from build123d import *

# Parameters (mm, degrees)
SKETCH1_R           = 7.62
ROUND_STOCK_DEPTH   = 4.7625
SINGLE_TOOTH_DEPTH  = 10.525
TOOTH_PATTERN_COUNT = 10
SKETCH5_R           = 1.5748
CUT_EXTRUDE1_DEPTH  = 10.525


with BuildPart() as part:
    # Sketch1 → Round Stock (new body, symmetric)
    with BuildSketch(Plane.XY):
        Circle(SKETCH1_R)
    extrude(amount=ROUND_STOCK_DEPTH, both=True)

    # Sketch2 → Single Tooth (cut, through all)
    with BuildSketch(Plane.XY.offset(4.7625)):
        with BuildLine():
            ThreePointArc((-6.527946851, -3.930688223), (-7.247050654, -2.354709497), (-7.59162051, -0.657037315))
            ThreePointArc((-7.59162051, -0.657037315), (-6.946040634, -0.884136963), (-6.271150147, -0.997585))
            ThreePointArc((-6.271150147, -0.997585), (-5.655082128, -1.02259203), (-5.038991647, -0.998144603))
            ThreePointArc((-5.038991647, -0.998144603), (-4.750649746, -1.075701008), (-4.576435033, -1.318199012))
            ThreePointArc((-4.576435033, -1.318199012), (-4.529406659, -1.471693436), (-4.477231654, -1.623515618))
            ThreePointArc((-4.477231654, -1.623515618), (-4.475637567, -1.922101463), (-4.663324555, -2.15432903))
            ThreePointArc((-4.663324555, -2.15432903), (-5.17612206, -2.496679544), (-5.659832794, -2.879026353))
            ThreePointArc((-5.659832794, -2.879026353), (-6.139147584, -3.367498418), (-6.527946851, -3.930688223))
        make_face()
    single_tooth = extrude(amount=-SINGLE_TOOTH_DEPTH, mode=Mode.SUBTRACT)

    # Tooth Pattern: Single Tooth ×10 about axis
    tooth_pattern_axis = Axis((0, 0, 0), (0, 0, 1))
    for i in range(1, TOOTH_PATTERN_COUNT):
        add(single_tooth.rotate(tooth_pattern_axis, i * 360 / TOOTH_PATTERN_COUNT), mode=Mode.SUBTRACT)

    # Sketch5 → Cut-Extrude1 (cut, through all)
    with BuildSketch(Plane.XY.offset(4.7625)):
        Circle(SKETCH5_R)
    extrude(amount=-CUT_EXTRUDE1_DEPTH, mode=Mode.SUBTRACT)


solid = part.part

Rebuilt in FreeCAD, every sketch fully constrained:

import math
import FreeCAD as App
import Part
import Sketcher
from FreeCAD import Vector
Q = App.Units.Quantity

doc = App.newDocument("Part")
body = doc.addObject("PartDesign::Body", "Body")

# Sketch on XY plane
sketch1 = body.newObject("Sketcher::SketchObject", "Sketch")
sketch1.AttachmentSupport = (doc.getObject("XY_Plane"), [""])
sketch1.MapMode = "FlatFace"
sketch1.addGeometry(Part.Circle(Vector(0, 0, 0), Vector(0, 0, 1), 8), False)
sketch1.addConstraint(Sketcher.Constraint("Coincident", 0, 3, -1, 1))
sketch1.addConstraint(Sketcher.Constraint("Diameter", 0, Q("0.6 in")))
pad1 = body.newObject("PartDesign::Pad", "Pad")
pad1.Profile = sketch1
pad1.Length = Q("0.375 in")
pad1.Midplane = True

# Sketch on XY plane
sketch2 = body.newObject("Sketcher::SketchObject", "Sketch001")
sketch2.AttachmentSupport = (doc.getObject("XY_Plane"), [""])
sketch2.MapMode = "FlatFace"
sketch2.AttachmentOffset = App.Placement(Vector(0, 0, 0.1875 * 25.4), App.Rotation())
sketch2.addGeometry(Part.ArcOfCircle(Part.Circle(Vector(0, 0, 0), Vector(0, 0, 1), 7.62), math.radians(-175), math.radians(-149)), False)
sketch2.addGeometry(Part.ArcOfCircle(Part.Circle(Vector(-3.06, -5.91, 0), Vector(0, 0, 1), 3.99), math.radians(130.62), math.radians(150.3)), False)
sketch2.addGeometry(Part.ArcOfCircle(Part.Circle(Vector(-0.65, -8.71, 0), Vector(0, 0, 1), 7.69), math.radians(121.43), math.radians(130.62)), False)
sketch2.addGeometry(Part.ArcOfCircle(Part.Circle(Vector(-4.9, -1.78, 0), Vector(0, 0, 1), 0.44), math.radians(-59), math.radians(20)), False)
sketch2.addGeometry(Part.ArcOfCircle(Part.Circle(Vector(0, 0, 0), Vector(0, 0, 1), 4.76), math.radians(-163.93), math.radians(-160.07)), False)
sketch2.addGeometry(Part.ArcOfCircle(Part.Circle(Vector(-5, -1.44, 0), Vector(0, 0, 1), 0.44), math.radians(16), math.radians(95)), False)
sketch2.addGeometry(Part.ArcOfCircle(Part.Circle(Vector(-5.65, 6.66, 0), Vector(0, 0, 1), 7.69), math.radians(-94.62), math.radians(-85.43)), False)
sketch2.addGeometry(Part.ArcOfCircle(Part.Circle(Vector(-5.95, 2.98, 0), Vector(0, 0, 1), 3.99), math.radians(-114.3), math.radians(-94.62)), False)
sketch2.addConstraint(Sketcher.Constraint("Coincident", 0, 2, 1, 2))
sketch2.addConstraint(Sketcher.Constraint("Tangent", 1, 1, 2, 2))
sketch2.addConstraint(Sketcher.Constraint("Tangent", 2, 1, 3, 1))
sketch2.addConstraint(Sketcher.Constraint("Tangent", 3, 2, 4, 2))
sketch2.addConstraint(Sketcher.Constraint("Tangent", 4, 1, 5, 1))
sketch2.addConstraint(Sketcher.Constraint("Tangent", 5, 2, 6, 2))
sketch2.addConstraint(Sketcher.Constraint("Tangent", 6, 1, 7, 2))
sketch2.addConstraint(Sketcher.Constraint("Coincident", 7, 1, 0, 1))
sketch2.addConstraint(Sketcher.Constraint("Coincident", 0, 3, -1, 1))
sketch2.addConstraint(Sketcher.Constraint("Coincident", 4, 3, -1, 1))
sketch2.addConstraint(Sketcher.Constraint("Equal", 3, 5))
sketch2.addConstraint(Sketcher.Constraint("Equal", 2, 6))
sketch2.addConstraint(Sketcher.Constraint("Equal", 1, 7))
sketch2.addConstraint(Sketcher.Constraint("Radius", 0, Q("0.3 in")))
sketch2.addConstraint(Sketcher.Constraint("Radius", 4, Q("0.1875 in")))
sketch2.addConstraint(Sketcher.Constraint("Radius", 1, Q("0.1571 in")))
sketch2.addConstraint(Sketcher.Constraint("Radius", 3, Q("0.0175 in")))
sketch2.addConstraint(Sketcher.Constraint("Radius", 2, 7.687176))
sketch2.addConstraint(Sketcher.Constraint("DistanceY", 4, 1, -1, 1, 1.318199))
sketch2.addConstraint(Sketcher.Constraint("DistanceY", 1, 1, 7, 3, 5.8588))
sketch2.addConstraint(Sketcher.Constraint("DistanceY", 2, 1, 5, 3, 0.713098))
sketch2.addConstraint(Sketcher.Constraint("DistanceX", 1, 1, 3, 2, 1.182601))
sketch2.addConstraint(Sketcher.Constraint("DistanceY", 3, 3, 5, 2, 0.776899))
sketch2.addConstraint(Sketcher.Constraint("DistanceY", 1, 3, -1, 1, 5.907741))
pocket1 = body.newObject("PartDesign::Pocket", "Pocket")
pocket1.Profile = sketch2
pocket1.Type = "ThroughAll"
doc.recompute()

polarpattern = body.newObject("PartDesign::PolarPattern", "PolarPattern")
polarpattern.Originals = [pocket1]
polarpattern.Axis = (doc.getObject("Z_Axis"), [""])
polarpattern.Angle = 360
polarpattern.Occurrences = 10
body.Tip = polarpattern

# Sketch on XY plane
sketch3 = body.newObject("Sketcher::SketchObject", "Sketch002")
sketch3.AttachmentSupport = (doc.getObject("XY_Plane"), [""])
sketch3.MapMode = "FlatFace"
sketch3.AttachmentOffset = App.Placement(Vector(0, 0, 0.1875 * 25.4), App.Rotation())
sketch3.addGeometry(Part.Circle(Vector(0, 0, 0), Vector(0, 0, 1), 1.6), False)
sketch3.addConstraint(Sketcher.Constraint("Coincident", 0, 3, -1, 1))
sketch3.addConstraint(Sketcher.Constraint("Diameter", 0, Q("0.124 in")))
pocket2 = body.newObject("PartDesign::Pocket", "Pocket001")
pocket2.Profile = sketch3
pocket2.Type = "ThroughAll"

doc.recompute()
